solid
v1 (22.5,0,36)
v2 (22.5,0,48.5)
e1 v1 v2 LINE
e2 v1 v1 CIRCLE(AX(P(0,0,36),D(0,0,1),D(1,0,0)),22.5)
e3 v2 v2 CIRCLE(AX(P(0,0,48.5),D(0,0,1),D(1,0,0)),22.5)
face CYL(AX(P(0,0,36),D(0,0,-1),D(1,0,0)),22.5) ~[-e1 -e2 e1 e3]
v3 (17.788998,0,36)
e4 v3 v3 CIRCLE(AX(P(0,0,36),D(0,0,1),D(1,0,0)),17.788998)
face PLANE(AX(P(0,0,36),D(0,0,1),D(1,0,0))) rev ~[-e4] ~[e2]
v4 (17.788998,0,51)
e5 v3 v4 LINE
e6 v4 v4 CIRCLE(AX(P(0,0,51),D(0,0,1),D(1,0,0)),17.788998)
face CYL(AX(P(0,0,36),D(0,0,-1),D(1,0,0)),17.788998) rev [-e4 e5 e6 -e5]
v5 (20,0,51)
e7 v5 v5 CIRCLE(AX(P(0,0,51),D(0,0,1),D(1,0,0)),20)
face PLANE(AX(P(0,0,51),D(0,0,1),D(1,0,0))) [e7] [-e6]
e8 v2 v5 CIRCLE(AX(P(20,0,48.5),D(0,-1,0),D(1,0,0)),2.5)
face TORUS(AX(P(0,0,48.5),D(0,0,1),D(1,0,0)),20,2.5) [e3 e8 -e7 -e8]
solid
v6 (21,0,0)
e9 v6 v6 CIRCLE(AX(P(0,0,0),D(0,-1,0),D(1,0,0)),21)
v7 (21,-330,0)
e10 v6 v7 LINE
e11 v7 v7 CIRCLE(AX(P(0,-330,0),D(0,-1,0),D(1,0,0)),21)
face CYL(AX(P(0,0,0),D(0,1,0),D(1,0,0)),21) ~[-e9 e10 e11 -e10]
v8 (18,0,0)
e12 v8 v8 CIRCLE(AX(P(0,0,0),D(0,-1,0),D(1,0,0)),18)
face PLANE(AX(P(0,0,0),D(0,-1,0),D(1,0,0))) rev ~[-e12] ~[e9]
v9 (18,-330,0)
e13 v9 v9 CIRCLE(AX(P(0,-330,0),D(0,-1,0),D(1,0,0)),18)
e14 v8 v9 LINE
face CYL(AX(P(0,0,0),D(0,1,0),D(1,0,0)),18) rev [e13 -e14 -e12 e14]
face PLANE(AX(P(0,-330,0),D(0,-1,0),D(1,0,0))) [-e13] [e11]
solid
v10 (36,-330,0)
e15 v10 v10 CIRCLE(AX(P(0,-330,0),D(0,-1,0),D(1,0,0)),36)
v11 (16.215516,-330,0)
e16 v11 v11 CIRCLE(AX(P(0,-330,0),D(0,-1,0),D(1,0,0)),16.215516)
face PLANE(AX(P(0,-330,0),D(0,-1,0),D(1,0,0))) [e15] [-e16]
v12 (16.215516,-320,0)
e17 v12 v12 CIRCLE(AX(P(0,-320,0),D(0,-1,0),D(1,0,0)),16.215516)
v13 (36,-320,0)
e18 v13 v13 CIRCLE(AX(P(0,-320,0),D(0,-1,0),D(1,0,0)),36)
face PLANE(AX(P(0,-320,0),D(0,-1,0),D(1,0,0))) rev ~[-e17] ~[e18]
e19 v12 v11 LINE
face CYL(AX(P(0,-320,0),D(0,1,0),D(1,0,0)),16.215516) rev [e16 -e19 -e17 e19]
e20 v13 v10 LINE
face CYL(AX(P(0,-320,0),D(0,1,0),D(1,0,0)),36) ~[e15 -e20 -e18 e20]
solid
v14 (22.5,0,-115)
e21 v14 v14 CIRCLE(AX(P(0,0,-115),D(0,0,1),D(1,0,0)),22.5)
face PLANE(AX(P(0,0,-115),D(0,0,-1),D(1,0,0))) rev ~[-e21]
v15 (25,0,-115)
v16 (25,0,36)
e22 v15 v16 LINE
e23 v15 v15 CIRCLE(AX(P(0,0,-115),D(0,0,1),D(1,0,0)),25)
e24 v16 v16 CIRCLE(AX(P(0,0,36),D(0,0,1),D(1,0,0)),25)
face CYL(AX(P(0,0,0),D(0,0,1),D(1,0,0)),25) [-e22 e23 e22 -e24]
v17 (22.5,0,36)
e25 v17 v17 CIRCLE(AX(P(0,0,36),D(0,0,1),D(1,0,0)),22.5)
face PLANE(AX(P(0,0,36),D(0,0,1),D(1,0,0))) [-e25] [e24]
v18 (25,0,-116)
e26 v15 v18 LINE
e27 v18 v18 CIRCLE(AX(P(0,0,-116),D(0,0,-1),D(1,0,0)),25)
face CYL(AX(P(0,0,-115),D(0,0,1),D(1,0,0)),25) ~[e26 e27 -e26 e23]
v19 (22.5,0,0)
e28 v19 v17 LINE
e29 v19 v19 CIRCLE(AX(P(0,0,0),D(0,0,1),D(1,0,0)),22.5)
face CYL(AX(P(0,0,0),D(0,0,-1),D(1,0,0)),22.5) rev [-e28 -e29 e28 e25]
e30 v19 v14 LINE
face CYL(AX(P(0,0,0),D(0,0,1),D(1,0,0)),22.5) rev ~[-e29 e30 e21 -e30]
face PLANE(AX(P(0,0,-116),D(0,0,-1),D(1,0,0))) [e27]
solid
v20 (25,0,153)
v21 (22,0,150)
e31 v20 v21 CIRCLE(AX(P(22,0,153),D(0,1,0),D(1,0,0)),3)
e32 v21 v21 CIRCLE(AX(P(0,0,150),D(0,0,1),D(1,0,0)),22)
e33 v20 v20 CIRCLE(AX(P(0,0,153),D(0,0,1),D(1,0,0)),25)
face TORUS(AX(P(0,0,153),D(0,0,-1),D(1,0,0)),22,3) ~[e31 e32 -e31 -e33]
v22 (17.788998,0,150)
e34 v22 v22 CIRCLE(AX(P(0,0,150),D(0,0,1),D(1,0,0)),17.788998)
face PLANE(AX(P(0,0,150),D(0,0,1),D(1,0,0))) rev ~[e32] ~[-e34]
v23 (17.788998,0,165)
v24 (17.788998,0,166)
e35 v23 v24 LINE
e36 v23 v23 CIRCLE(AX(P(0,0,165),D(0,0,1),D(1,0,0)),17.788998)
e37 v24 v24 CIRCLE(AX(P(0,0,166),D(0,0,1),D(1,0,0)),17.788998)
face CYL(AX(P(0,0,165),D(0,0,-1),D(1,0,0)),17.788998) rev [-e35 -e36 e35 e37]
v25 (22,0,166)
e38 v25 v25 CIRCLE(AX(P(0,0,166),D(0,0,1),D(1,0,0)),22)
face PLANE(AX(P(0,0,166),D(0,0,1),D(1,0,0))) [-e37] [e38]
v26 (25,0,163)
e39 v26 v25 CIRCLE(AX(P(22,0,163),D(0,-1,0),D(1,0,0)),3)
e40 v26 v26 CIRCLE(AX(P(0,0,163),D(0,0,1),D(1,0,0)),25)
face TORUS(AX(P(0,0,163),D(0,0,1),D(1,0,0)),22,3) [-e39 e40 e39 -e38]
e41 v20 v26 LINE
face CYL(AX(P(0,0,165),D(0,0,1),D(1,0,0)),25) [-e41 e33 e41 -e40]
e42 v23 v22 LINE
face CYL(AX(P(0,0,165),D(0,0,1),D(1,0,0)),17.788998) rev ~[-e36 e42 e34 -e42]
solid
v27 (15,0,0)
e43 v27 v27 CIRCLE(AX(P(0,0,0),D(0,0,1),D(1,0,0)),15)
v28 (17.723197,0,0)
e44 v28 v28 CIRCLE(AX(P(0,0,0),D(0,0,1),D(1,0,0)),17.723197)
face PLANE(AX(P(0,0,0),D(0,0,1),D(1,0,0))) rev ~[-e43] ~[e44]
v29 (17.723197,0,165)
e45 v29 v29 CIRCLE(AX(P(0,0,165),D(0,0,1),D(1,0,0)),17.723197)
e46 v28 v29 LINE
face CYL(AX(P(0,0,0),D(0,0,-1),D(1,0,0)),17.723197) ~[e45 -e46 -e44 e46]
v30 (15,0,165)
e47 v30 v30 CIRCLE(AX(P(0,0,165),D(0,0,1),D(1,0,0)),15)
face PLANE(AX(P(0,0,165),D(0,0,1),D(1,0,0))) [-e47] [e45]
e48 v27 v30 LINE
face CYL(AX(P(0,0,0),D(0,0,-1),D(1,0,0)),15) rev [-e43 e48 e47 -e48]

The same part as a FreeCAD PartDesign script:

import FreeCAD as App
import Part
import Sketcher
from FreeCAD import Vector


def edges_at(feature, points):
    """Names of the edges that pass closest to the given points."""
    edges = feature.Shape.Edges
    near = lambda p: min(range(len(edges)), key=lambda i: edges[i].distToShape(Part.Vertex(*p))[0])
    return sorted({f"Edge{near(p) + 1}" for p in points})

doc = App.newDocument("Part")
body = doc.addObject("PartDesign::Body", "Body")

# Sketch on XZ plane
sketch1 = body.newObject("Sketcher::SketchObject", "Sketch")
sketch1.AttachmentSupport = (doc.getObject("XZ_Plane"), [""])
sketch1.MapMode = "FlatFace"
sketch1.addGeometry(Part.Circle(Vector(0, 0, 0), Vector(0, 0, 1), 21), False)
sketch1.addGeometry(Part.Circle(Vector(0, 0, 0), Vector(0, 0, 1), 18), False)
sketch1.addConstraint(Sketcher.Constraint("Coincident", 0, 3, -1, 1))
sketch1.addConstraint(Sketcher.Constraint("Coincident", 1, 3, -1, 1))
sketch1.addConstraint(Sketcher.Constraint("Diameter", 0, 42.0))
sketch1.addConstraint(Sketcher.Constraint("Diameter", 1, 36.0))
pad1 = body.newObject("PartDesign::Pad", "Pad")
pad1.Profile = sketch1
pad1.Length = 330
body2 = doc.addObject("PartDesign::Body", "Body001")

# Sketch on XY plane
sketch2 = body2.newObject("Sketcher::SketchObject", "Sketch001")
sketch2.AttachmentSupport = (doc.getObject("XY_Plane001"), [""])
sketch2.MapMode = "FlatFace"
sketch2.addGeometry(Part.Circle(Vector(0, 0, 0), Vector(0, 0, 1), 25), False)
sketch2.addGeometry(Part.Circle(Vector(0, 0, 0), Vector(0, 0, 1), 22.5), False)
sketch2.addConstraint(Sketcher.Constraint("Coincident", 0, 3, -1, 1))
sketch2.addConstraint(Sketcher.Constraint("Coincident", 1, 3, -1, 1))
sketch2.addConstraint(Sketcher.Constraint("Diameter", 0, 50.0))
sketch2.addConstraint(Sketcher.Constraint("Diameter", 1, 45.0))
pad2 = body2.newObject("PartDesign::Pad", "Pad001")
pad2.Profile = sketch2
pad2.Type = "TwoLengths"
pad2.Length = 36
pad2.Length2 = 115

# Sketch on XY plane
sketch3 = body2.newObject("Sketcher::SketchObject", "Sketch002")
sketch3.AttachmentSupport = (doc.getObject("XY_Plane001"), [""])
sketch3.MapMode = "FlatFace"
sketch3.AttachmentOffset = App.Placement(Vector(0, 0, -115), App.Rotation())
sketch3.addGeometry(Part.Circle(Vector(0, 0, 0), Vector(0, 0, 1), 25), False)
sketch3.addConstraint(Sketcher.Constraint("Coincident", 0, 3, -1, 1))
sketch3.addConstraint(Sketcher.Constraint("Diameter", 0, 50.0))
pad3 = body2.newObject("PartDesign::Pad", "Pad002")
pad3.Profile = sketch3
pad3.Length = 1
pad3.Reversed = True
body3 = doc.addObject("PartDesign::Body", "Body002")

# Sketch on XY plane
sketch4 = body3.newObject("Sketcher::SketchObject", "Sketch003")
sketch4.AttachmentSupport = (doc.getObject("XY_Plane002"), [""])
sketch4.MapMode = "FlatFace"
sketch4.AttachmentOffset = App.Placement(Vector(0, 0, 36), App.Rotation())
sketch4.addGeometry(Part.Circle(Vector(0, 0, 0), Vector(0, 0, 1), 22.5), False)
sketch4.addGeometry(Part.Circle(Vector(0, 0, 0), Vector(0, 0, 1), 17.788998), False)
sketch4.addConstraint(Sketcher.Constraint("Coincident", 0, 3, -1, 1))
sketch4.addConstraint(Sketcher.Constraint("Coincident", 1, 3, -1, 1))
sketch4.addConstraint(Sketcher.Constraint("Diameter", 0, 45.0))
sketch4.addConstraint(Sketcher.Constraint("Diameter", 1, 35.577996))
pad4 = body3.newObject("PartDesign::Pad", "Pad003")
pad4.Profile = sketch4
pad4.Length = 15
doc.recompute()

fillet = body3.newObject("PartDesign::Fillet", "Fillet")
fillet.Base = (pad4, edges_at(pad4, [(-22.5, 0, 51)]))
fillet.Radius = 2.5
body4 = doc.addObject("PartDesign::Body", "Body003")

# Sketch on XY plane
sketch5 = body4.newObject("Sketcher::SketchObject", "Sketch004")
sketch5.AttachmentSupport = (doc.getObject("XY_Plane003"), [""])
sketch5.MapMode = "FlatFace"
sketch5.addGeometry(Part.Circle(Vector(0, 0, 0), Vector(0, 0, 1), 17.723197), False)
sketch5.addGeometry(Part.Circle(Vector(0, 0, 0), Vector(0, 0, 1), 15), False)
sketch5.addConstraint(Sketcher.Constraint("Coincident", 0, 3, -1, 1))
sketch5.addConstraint(Sketcher.Constraint("Coincident", 1, 3, -1, 1))
sketch5.addConstraint(Sketcher.Constraint("Diameter", 1, 30.0))
sketch5.addConstraint(Sketcher.Constraint("Diameter", 0, 35.446394))
pad5 = body4.newObject("PartDesign::Pad", "Pad004")
pad5.Profile = sketch5
pad5.Length = 165
body5 = doc.addObject("PartDesign::Body", "Body004")

# Sketch on XY plane
sketch6 = body5.newObject("Sketcher::SketchObject", "Sketch005")
sketch6.AttachmentSupport = (doc.getObject("XY_Plane004"), [""])
sketch6.MapMode = "FlatFace"
sketch6.AttachmentOffset = App.Placement(Vector(0, 0, 165), App.Rotation())
sketch6.addGeometry(Part.Circle(Vector(0, 0, 0), Vector(0, 0, 1), 25), False)
sketch6.addGeometry(Part.Circle(Vector(0, 0, 0), Vector(0, 0, 1), 17.788998), False)
sketch6.addConstraint(Sketcher.Constraint("Coincident", 0, 3, -1, 1))
sketch6.addConstraint(Sketcher.Constraint("Coincident", 1, 3, -1, 1))
sketch6.addConstraint(Sketcher.Constraint("Diameter", 0, 50.0))
sketch6.addConstraint(Sketcher.Constraint("Diameter", 1, 35.577996))
pad6 = body5.newObject("PartDesign::Pad", "Pad005")
pad6.Profile = sketch6
pad6.Type = "TwoLengths"
pad6.Length = 1
pad6.Length2 = 15
doc.recompute()

fillet2 = body5.newObject("PartDesign::Fillet", "Fillet001")
fillet2.Base = (pad6, edges_at(pad6, [(-25, 0, 166), (-25, 0, 150)]))
fillet2.Radius = 3
body6 = doc.addObject("PartDesign::Body", "Body005")

# Sketch on XZ plane
sketch7 = body6.newObject("Sketcher::SketchObject", "Sketch006")
sketch7.AttachmentSupport = (doc.getObject("XZ_Plane005"), [""])
sketch7.MapMode = "FlatFace"
sketch7.AttachmentOffset = App.Placement(Vector(0, 0, 320), App.Rotation())
sketch7.addGeometry(Part.Circle(Vector(0, 0, 0), Vector(0, 0, 1), 36), False)
sketch7.addGeometry(Part.Circle(Vector(0, 0, 0), Vector(0, 0, 1), 16.215516), False)
sketch7.addConstraint(Sketcher.Constraint("Coincident", 0, 3, -1, 1))
sketch7.addConstraint(Sketcher.Constraint("Coincident", 1, 3, -1, 1))
sketch7.addConstraint(Sketcher.Constraint("Diameter", 0, 72.0))
sketch7.addConstraint(Sketcher.Constraint("Diameter", 1, 32.431033))
pad7 = body6.newObject("PartDesign::Pad", "Pad006")
pad7.Profile = sketch7
pad7.Length = 10

doc.recompute()
